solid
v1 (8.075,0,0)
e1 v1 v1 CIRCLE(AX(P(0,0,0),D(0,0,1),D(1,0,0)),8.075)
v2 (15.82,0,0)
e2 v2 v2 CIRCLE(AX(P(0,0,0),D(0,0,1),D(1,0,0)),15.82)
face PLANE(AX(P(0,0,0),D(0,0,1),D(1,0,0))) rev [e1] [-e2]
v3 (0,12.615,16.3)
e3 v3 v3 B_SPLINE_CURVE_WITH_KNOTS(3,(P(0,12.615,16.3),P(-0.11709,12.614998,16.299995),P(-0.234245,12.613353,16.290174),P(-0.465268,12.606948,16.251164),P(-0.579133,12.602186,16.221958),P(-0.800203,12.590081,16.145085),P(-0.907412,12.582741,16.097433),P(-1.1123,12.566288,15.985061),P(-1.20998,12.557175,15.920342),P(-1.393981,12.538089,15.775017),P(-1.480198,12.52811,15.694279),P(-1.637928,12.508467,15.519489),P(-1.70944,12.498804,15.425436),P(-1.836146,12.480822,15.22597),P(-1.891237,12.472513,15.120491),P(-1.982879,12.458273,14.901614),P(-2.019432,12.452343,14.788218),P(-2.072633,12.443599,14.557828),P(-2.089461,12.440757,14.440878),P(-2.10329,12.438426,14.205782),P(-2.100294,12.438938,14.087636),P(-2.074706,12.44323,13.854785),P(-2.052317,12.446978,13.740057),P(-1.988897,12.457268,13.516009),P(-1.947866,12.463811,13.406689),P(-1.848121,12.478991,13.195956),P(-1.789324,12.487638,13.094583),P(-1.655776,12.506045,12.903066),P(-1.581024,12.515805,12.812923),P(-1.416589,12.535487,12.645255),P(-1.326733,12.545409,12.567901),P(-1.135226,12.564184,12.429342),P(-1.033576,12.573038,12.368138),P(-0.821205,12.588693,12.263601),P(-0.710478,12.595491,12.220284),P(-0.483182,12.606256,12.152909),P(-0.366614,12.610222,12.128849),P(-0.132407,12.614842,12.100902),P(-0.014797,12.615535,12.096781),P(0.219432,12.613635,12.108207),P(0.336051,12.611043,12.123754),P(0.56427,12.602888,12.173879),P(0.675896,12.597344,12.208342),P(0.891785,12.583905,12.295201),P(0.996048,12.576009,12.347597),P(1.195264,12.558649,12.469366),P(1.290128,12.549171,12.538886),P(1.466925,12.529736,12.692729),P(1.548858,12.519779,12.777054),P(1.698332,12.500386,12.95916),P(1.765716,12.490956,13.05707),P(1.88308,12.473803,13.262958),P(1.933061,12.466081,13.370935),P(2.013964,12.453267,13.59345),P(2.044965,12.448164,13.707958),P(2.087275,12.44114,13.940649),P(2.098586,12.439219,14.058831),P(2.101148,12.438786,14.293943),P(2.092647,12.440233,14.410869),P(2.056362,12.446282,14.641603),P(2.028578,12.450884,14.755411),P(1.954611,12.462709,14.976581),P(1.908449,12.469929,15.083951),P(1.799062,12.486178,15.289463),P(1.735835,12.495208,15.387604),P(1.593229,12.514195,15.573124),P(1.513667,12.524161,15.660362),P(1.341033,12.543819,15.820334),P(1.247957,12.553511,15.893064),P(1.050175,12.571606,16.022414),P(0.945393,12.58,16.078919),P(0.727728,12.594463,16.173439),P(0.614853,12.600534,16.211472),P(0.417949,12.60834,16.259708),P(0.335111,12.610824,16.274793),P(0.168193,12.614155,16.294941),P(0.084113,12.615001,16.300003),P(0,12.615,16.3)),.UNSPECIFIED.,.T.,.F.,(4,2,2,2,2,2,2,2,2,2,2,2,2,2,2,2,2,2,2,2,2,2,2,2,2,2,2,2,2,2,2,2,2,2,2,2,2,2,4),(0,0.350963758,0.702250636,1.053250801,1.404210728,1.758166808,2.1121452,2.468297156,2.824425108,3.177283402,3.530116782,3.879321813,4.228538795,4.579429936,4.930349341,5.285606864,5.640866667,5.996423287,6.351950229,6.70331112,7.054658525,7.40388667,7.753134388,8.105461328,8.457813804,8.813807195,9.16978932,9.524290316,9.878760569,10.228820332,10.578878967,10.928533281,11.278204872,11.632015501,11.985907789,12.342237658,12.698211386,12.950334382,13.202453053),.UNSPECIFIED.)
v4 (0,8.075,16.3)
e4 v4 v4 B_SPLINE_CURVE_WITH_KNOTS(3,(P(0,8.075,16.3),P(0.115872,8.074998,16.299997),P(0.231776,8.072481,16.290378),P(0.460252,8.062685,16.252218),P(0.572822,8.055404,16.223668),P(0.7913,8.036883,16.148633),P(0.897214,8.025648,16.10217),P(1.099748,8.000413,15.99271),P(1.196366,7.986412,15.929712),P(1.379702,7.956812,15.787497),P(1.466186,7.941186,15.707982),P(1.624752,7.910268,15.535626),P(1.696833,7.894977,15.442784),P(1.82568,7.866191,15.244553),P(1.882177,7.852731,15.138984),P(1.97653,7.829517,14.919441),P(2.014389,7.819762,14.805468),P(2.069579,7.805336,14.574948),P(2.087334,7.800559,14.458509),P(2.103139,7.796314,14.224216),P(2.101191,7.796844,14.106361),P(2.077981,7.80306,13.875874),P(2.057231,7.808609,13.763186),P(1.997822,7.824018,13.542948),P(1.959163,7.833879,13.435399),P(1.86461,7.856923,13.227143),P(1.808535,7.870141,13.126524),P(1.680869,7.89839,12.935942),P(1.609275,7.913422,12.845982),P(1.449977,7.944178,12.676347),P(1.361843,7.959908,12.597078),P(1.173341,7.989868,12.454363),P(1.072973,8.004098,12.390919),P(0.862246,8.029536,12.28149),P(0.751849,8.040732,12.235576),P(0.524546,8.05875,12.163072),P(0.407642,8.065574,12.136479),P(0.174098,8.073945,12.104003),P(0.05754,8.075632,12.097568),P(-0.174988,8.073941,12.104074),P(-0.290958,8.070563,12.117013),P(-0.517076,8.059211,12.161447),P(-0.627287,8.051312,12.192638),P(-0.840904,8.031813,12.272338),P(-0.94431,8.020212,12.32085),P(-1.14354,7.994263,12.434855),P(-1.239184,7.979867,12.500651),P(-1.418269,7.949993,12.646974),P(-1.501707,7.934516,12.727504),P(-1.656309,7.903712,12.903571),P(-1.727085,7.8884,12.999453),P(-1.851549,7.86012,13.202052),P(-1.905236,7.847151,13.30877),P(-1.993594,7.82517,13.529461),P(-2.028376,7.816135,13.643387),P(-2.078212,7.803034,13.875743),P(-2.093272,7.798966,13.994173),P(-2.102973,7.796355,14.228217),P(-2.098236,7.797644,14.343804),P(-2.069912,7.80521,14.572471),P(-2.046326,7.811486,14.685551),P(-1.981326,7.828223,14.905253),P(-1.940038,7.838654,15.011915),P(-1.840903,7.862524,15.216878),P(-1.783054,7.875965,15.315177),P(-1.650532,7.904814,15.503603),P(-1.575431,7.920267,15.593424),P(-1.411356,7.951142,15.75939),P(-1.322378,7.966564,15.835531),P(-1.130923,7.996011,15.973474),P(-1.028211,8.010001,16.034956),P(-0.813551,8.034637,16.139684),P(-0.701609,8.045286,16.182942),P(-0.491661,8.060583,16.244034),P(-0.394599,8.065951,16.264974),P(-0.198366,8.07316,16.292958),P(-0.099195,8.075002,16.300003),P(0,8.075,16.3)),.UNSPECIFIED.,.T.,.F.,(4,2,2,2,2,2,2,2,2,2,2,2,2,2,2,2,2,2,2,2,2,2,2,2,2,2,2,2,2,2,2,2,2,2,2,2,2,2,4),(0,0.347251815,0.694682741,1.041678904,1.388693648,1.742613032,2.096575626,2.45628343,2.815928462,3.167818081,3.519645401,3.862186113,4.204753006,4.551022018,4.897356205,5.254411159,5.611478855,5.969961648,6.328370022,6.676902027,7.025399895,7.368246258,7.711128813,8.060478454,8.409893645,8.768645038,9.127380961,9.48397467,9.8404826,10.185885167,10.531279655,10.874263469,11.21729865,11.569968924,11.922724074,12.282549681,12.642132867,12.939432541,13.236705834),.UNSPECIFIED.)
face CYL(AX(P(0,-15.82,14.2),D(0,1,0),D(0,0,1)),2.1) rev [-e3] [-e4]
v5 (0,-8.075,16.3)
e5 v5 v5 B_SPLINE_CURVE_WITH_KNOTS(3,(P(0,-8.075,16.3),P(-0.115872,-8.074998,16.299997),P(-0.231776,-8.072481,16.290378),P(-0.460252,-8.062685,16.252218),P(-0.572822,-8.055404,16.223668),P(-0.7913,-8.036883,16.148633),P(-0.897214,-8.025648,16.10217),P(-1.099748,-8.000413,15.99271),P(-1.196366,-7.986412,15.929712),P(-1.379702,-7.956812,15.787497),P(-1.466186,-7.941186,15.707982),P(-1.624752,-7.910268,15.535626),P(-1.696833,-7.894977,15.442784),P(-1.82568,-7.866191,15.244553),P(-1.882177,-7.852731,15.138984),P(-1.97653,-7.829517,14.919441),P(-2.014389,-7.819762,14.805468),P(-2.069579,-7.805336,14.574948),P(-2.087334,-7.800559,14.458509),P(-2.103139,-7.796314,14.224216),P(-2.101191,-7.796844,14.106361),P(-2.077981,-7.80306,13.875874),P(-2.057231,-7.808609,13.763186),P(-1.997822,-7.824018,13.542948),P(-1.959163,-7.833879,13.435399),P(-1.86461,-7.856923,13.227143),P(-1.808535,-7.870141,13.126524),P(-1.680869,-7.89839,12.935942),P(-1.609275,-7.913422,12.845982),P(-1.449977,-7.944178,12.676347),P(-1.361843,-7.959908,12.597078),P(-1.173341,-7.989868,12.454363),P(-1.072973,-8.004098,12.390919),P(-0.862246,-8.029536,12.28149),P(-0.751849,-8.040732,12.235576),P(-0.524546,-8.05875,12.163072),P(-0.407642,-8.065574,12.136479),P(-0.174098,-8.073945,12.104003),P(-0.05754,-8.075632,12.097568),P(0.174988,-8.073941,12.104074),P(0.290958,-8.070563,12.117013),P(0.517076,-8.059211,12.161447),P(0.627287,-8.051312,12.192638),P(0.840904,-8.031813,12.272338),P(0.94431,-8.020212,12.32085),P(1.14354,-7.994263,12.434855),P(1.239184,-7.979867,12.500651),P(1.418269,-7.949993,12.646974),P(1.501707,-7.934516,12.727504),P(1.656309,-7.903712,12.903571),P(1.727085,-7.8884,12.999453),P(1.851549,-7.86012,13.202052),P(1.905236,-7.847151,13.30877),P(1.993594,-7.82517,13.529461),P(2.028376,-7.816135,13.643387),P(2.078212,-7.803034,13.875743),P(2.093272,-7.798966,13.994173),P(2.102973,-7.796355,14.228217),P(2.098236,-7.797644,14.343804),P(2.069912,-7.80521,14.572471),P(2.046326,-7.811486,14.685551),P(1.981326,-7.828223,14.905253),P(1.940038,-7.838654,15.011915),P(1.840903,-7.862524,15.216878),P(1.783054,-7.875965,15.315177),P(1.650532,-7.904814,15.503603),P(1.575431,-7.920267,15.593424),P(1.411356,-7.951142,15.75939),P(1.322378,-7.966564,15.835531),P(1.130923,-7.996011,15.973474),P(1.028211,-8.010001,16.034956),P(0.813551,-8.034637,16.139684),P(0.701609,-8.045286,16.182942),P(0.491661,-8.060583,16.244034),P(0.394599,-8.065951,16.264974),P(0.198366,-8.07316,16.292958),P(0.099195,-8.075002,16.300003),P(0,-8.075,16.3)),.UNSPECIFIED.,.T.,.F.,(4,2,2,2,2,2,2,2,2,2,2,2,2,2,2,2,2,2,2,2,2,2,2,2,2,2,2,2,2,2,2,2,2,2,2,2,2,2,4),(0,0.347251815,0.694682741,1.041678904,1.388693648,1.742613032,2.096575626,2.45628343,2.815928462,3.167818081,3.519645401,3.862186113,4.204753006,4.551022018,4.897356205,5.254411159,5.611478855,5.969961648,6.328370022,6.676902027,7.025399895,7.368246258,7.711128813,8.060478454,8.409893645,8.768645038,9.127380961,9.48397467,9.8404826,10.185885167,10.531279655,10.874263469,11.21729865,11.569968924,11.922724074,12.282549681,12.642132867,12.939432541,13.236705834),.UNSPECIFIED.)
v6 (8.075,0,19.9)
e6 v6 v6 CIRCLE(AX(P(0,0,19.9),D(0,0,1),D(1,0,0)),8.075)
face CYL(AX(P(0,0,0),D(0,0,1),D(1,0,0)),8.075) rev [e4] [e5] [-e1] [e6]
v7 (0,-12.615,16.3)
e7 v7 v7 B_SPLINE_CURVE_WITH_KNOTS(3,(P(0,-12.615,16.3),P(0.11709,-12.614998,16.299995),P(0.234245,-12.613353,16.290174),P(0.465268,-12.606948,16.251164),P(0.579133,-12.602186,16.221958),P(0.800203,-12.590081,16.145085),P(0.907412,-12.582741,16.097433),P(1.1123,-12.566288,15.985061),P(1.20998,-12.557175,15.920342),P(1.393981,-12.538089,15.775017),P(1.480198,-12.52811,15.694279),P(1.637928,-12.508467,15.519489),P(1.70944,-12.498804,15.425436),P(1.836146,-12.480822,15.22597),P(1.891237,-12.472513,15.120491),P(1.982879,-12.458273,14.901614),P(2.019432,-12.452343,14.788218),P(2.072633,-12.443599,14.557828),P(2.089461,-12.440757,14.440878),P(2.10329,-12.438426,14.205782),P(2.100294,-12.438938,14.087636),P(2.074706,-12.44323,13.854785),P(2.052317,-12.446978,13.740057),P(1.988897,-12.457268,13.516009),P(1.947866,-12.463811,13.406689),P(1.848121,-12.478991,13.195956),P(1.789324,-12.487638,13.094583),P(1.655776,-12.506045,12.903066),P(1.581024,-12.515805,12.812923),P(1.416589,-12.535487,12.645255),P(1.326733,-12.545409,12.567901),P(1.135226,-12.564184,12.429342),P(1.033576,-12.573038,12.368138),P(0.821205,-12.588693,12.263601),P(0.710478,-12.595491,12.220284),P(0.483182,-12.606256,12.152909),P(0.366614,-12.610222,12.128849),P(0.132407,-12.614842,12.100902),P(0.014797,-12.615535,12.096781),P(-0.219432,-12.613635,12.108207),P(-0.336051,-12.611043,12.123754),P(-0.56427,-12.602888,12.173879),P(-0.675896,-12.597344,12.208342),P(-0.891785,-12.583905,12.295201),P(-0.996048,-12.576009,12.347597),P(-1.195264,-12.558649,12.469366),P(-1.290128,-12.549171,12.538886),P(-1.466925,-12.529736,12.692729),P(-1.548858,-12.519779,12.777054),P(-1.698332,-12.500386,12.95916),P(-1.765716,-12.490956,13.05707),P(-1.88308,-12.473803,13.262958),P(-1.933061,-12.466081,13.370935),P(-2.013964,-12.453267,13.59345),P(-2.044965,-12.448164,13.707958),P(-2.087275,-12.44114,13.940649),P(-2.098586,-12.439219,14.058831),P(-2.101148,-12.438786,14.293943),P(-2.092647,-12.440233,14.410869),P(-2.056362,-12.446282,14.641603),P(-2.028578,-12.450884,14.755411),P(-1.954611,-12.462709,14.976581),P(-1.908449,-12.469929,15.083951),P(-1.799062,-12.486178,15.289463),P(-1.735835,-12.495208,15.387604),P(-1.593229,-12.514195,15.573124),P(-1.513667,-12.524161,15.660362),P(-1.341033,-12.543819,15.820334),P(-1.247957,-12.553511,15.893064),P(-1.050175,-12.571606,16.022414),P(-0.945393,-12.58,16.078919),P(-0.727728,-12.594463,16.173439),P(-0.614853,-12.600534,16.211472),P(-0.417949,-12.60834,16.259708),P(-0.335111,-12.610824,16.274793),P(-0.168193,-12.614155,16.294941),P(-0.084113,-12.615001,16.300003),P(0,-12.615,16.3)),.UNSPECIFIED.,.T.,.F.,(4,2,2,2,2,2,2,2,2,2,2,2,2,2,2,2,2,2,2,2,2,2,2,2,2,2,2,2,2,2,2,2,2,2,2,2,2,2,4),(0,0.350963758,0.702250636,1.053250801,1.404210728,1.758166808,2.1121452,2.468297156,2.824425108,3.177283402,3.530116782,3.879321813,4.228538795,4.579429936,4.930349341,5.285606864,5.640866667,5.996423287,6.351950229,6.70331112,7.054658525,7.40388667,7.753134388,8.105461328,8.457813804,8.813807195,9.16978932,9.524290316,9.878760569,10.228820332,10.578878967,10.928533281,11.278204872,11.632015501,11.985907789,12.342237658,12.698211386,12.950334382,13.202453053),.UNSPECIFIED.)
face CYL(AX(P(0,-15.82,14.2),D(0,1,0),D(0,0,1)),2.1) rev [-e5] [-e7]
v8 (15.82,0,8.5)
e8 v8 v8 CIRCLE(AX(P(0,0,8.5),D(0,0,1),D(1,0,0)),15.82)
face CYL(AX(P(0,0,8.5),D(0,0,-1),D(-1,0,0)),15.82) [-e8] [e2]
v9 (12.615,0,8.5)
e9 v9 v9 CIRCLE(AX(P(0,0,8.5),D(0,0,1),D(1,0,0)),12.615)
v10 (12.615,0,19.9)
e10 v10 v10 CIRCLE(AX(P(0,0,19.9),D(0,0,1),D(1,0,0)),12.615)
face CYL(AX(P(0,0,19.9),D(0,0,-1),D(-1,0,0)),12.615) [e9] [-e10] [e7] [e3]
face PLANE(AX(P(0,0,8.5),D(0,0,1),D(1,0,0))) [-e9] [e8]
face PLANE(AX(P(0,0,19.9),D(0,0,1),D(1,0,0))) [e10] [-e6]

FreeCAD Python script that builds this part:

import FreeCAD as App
import Part
import Sketcher

V = App.Vector

doc = App.newDocument("Part")
body = doc.addObject("PartDesign::Body", "Body")

sketch1 = doc.addObject("Sketcher::SketchObject", "Sketch")
body.addObject(sketch1)
sketch1.AttachmentSupport = (doc.XY_Plane, [""])
sketch1.MapMode = "FlatFace"
sketch1.addGeometry(Part.Circle(V(0, 0, 0), V(0, 0, 1), 15.82), False)
sketch1.addConstraint(Sketcher.Constraint("Coincident", 0, 3, -1, 1))
sketch1.addConstraint(Sketcher.Constraint("Diameter", 0, 31.64))
pad1 = doc.addObject("PartDesign::Pad", "Pad")
body.addObject(pad1)
pad1.Profile = sketch1
pad1.Length = 8.5

sketch2 = doc.addObject("Sketcher::SketchObject", "Sketch001")
body.addObject(sketch2)
sketch2.AttachmentSupport = (doc.XY_Plane, [""])
sketch2.MapMode = "FlatFace"
sketch2.AttachmentOffset = App.Placement(V(0, 0, 8.5), App.Rotation())
sketch2.addGeometry(Part.Circle(V(0, 0, 0), V(0, 0, 1), 12.615), False)
sketch2.addConstraint(Sketcher.Constraint("Coincident", 0, 3, -1, 1))
sketch2.addConstraint(Sketcher.Constraint("Diameter", 0, 25.23))
pad2 = doc.addObject("PartDesign::Pad", "Pad001")
body.addObject(pad2)
pad2.Profile = sketch2
pad2.Length = 11.4

sketch3 = doc.addObject("Sketcher::SketchObject", "Sketch002")
body.addObject(sketch3)
sketch3.AttachmentSupport = (doc.XY_Plane, [""])
sketch3.MapMode = "FlatFace"
sketch3.AttachmentOffset = App.Placement(V(0, 0, 19.9), App.Rotation())
sketch3.addGeometry(Part.Circle(V(0, 0, 0), V(0, 0, 1), 8.075), False)
sketch3.addConstraint(Sketcher.Constraint("Coincident", 0, 3, -1, 1))
sketch3.addConstraint(Sketcher.Constraint("Diameter", 0, 16.15))
pocket1 = doc.addObject("PartDesign::Pocket", "Pocket")
body.addObject(pocket1)
pocket1.Profile = sketch3
pocket1.Type = "ThroughAll"

sketch4 = doc.addObject("Sketcher::SketchObject", "Sketch003")
body.addObject(sketch4)
sketch4.AttachmentSupport = (doc.XZ_Plane, [""])
sketch4.MapMode = "FlatFace"
sketch4.addGeometry(Part.Circle(V(0, 14.2, 0), V(0, 0, 1), 2.1), False)
sketch4.addConstraint(Sketcher.Constraint("PointOnObject", 0, 3, -2))
sketch4.addConstraint(Sketcher.Constraint("Diameter", 0, 4.2))
sketch4.addConstraint(Sketcher.Constraint("DistanceY", -1, 1, 0, 3, 14.2))
pocket2 = doc.addObject("PartDesign::Pocket", "Pocket001")
body.addObject(pocket2)
pocket2.Profile = sketch4
pocket2.Type = "ThroughAll"
pocket2.Midplane = True

doc.recompute()
